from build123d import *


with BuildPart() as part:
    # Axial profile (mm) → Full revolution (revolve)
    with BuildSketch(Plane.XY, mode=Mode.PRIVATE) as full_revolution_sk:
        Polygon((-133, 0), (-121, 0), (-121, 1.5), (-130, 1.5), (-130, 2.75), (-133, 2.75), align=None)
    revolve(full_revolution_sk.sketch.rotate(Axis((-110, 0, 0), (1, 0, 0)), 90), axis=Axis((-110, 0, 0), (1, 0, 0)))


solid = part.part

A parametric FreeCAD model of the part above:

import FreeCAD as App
import Part
import Sketcher

doc = App.newDocument("Part")
params = doc.addObject("Spreadsheet::Sheet", "Params")
for row, (alias, value) in enumerate([
    ("sketch1_width", "12 mm"),
    ("sketch1_width2", "9 mm"),
    ("sketch1_height", "1.5 mm"),
    ("sketch1_height2", "1.25 mm"),
    ("revolution_angle", "360 deg"),
], start=1):
    params.set(f"A{row}", alias)
    params.set(f"B{row}", "=" + value)
    params.setAlias(f"B{row}", alias)

body = doc.addObject("PartDesign::Body", "Body")

# Sketch on XY plane
sketch1 = body.newObject("Sketcher::SketchObject", "Sketch")
sketch1.AttachmentSupport = (doc.getObject("XY_Plane"), [""])
sketch1.MapMode = "FlatFace"
sketch1.addGeometry([
    Part.LineSegment(App.Vector(-133, 0, 0), App.Vector(-121, 0, 0)),  # 0
    Part.LineSegment(App.Vector(-121, 0, 0), App.Vector(-121, 1.5, 0)),  # 1
    Part.LineSegment(App.Vector(-121, 1.5, 0), App.Vector(-130, 1.5, 0)),  # 2
    Part.LineSegment(App.Vector(-130, 1.5, 0), App.Vector(-130, 2.8, 0)),  # 3
    Part.LineSegment(App.Vector(-130, 2.8, 0), App.Vector(-133, 2.8, 0)),  # 4
    Part.LineSegment(App.Vector(-133, 2.8, 0), App.Vector(-133, 0, 0)),  # 5
], False)
sketch1.addConstraint([
    Sketcher.Constraint("Coincident", 0, 2, 1, 1),
    Sketcher.Constraint("Coincident", 1, 2, 2, 1),
    Sketcher.Constraint("Coincident", 2, 2, 3, 1),
    Sketcher.Constraint("Coincident", 3, 2, 4, 1),
    Sketcher.Constraint("Coincident", 4, 2, 5, 1),
    Sketcher.Constraint("Coincident", 5, 2, 0, 1),
    Sketcher.Constraint("Horizontal", 0),
    Sketcher.Constraint("Vertical", 1),
    Sketcher.Constraint("Horizontal", 2),
    Sketcher.Constraint("Vertical", 3),
    Sketcher.Constraint("Horizontal", 4),
    Sketcher.Constraint("Vertical", 5),
    Sketcher.Constraint("PointOnObject", 0, 2, -1),
    Sketcher.Constraint("DistanceX", 0, 1, 0, 2, 12.0),
    Sketcher.Constraint("DistanceX", 2, 2, 2, 1, 9.0),
    Sketcher.Constraint("DistanceY", 1, 1, 1, 2, 1.5),
    Sketcher.Constraint("DistanceX", 0, 2, -1, 1, 121.0),
    Sketcher.Constraint("DistanceY", 3, 1, 3, 2, 1.25),
])
sketch1.setExpression("Constraints[13]", "Params.sketch1_width")
sketch1.setExpression("Constraints[14]", "Params.sketch1_width2")
sketch1.setExpression("Constraints[15]", "Params.sketch1_height")
sketch1.setExpression("Constraints[17]", "Params.sketch1_height2")
revolution = body.newObject("PartDesign::Revolution", "Revolution")
revolution.Profile = sketch1
revolution.ReferenceAxis = (sketch1, ["H_Axis"])
revolution.setExpression("Angle", "Params.revolution_angle")

doc.recompute()
